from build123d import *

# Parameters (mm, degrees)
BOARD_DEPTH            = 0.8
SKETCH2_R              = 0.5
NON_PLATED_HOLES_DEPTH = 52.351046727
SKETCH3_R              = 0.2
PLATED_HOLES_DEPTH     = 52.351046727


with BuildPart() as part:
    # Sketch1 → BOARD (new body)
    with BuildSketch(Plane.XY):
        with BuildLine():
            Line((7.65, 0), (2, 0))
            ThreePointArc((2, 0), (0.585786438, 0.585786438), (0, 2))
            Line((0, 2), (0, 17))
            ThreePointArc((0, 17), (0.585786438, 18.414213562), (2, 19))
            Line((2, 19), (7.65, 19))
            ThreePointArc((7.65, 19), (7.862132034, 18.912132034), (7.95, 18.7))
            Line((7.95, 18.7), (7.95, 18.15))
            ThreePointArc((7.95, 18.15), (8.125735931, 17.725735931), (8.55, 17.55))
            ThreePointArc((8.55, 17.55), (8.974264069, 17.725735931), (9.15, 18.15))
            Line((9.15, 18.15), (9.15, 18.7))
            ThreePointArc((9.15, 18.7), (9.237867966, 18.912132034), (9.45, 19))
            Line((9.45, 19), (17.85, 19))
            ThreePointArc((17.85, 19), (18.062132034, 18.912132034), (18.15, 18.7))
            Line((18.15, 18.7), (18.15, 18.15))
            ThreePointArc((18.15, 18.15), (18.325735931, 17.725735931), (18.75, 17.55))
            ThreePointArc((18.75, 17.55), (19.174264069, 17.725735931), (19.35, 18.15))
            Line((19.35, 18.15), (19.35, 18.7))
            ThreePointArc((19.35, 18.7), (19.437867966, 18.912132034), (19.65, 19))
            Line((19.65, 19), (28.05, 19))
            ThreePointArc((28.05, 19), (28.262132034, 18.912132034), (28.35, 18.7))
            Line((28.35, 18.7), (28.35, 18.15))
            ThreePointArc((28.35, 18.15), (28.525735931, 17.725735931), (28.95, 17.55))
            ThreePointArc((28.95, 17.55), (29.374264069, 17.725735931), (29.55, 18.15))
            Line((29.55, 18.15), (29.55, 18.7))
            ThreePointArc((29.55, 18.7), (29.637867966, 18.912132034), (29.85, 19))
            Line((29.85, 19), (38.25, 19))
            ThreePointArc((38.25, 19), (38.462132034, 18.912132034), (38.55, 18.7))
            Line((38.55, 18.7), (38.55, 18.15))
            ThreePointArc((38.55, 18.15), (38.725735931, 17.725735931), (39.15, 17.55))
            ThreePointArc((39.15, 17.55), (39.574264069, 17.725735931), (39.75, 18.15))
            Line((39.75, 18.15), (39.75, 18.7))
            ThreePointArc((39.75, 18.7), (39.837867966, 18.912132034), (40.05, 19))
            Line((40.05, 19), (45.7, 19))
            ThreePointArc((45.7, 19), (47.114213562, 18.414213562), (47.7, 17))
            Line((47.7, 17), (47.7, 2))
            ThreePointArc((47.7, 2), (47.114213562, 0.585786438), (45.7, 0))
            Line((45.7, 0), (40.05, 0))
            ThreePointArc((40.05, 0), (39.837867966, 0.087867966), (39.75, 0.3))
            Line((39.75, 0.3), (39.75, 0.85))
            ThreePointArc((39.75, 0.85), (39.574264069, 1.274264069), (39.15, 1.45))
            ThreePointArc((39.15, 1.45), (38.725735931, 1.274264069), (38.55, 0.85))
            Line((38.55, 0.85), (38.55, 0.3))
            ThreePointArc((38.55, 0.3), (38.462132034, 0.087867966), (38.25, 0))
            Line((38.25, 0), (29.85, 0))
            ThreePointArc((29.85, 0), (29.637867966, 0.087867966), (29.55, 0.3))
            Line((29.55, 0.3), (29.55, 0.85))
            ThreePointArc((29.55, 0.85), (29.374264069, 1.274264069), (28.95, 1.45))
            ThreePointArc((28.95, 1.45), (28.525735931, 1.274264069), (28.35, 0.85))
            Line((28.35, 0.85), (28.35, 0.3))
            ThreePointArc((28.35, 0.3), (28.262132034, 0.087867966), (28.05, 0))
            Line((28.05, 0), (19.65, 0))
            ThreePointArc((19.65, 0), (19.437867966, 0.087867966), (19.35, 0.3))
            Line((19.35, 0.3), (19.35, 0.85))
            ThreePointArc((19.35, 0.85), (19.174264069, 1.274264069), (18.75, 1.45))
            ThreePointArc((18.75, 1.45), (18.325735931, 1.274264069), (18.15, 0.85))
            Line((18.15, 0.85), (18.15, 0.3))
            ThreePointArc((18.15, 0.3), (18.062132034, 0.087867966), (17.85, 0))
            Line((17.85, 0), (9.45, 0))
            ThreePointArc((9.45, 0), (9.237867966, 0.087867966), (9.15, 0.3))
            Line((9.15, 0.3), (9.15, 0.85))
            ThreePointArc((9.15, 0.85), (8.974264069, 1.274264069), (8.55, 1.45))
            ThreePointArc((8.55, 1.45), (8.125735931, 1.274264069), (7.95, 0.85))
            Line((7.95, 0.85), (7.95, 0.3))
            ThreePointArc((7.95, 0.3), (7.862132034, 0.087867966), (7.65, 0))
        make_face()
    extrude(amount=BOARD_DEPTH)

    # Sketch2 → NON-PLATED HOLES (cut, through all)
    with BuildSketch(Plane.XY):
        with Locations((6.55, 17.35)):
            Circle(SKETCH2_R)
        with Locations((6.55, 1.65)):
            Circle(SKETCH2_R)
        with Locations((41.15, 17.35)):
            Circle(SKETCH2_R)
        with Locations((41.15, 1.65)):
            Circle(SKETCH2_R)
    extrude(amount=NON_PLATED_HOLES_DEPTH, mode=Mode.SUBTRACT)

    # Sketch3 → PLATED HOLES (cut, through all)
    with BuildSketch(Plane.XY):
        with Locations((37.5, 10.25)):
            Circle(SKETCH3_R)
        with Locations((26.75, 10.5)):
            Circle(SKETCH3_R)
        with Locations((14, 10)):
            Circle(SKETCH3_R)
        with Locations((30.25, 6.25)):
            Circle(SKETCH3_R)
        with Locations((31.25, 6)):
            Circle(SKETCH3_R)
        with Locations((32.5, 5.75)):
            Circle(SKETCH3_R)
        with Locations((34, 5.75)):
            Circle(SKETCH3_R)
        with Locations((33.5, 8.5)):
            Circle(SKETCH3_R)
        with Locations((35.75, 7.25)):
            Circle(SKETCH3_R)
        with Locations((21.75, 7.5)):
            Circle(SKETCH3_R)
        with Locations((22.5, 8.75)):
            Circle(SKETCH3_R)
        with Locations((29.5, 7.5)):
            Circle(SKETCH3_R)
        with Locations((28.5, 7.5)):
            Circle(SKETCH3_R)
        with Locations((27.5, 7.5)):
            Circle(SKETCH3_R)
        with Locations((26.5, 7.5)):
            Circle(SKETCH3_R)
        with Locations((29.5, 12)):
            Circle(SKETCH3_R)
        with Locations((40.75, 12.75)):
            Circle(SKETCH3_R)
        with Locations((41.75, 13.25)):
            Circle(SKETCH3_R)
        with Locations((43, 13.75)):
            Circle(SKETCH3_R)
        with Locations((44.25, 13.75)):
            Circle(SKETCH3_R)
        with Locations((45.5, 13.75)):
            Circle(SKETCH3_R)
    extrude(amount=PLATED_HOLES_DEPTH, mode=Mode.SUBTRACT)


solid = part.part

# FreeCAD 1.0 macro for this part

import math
import FreeCAD as App
import Part
import Sketcher

doc = App.newDocument("Part")
body = doc.addObject("PartDesign::Body", "Body")

# Sketch on XY plane
sketch1 = body.newObject("Sketcher::SketchObject", "Sketch")
sketch1.AttachmentSupport = (doc.getObject("XY_Plane"), [""])
sketch1.MapMode = "FlatFace"
sketch1.addGeometry(Part.LineSegment(App.Vector(2, 0, 0), App.Vector(7.65, 0, 0)), False)
sketch1.addGeometry(Part.ArcOfCircle(Part.Circle(App.Vector(7.65, 0.3, 0), App.Vector(0, 0, 1), 0.3), math.radians(-90), math.radians(0)), False)
sketch1.addGeometry(Part.LineSegment(App.Vector(7.95, 0.3, 0), App.Vector(7.95, 0.85, 0)), False)
sketch1.addGeometry(Part.ArcOfCircle(Part.Circle(App.Vector(8.55, 0.85, 0), App.Vector(0, 0, 1), 0.6), math.radians(90), math.radians(180)), False)
sketch1.addGeometry(Part.ArcOfCircle(Part.Circle(App.Vector(8.55, 0.85, 0), App.Vector(0, 0, 1), 0.6), math.radians(0), math.radians(90)), False)
sketch1.addGeometry(Part.LineSegment(App.Vector(9.15, 0.85, 0), App.Vector(9.15, 0.3, 0)), False)
sketch1.addGeometry(Part.ArcOfCircle(Part.Circle(App.Vector(9.45, 0.3, 0), App.Vector(0, 0, 1), 0.3), math.radians(-180), math.radians(-90)), False)
sketch1.addGeometry(Part.LineSegment(App.Vector(9.45, 0, 0), App.Vector(17.85, 0, 0)), False)
sketch1.addGeometry(Part.ArcOfCircle(Part.Circle(App.Vector(17.85, 0.3, 0), App.Vector(0, 0, 1), 0.3), math.radians(-90), math.radians(0)), False)
sketch1.addGeometry(Part.LineSegment(App.Vector(18.15, 0.3, 0), App.Vector(18.15, 0.85, 0)), False)
sketch1.addGeometry(Part.ArcOfCircle(Part.Circle(App.Vector(18.75, 0.85, 0), App.Vector(0, 0, 1), 0.6), math.radians(90), math.radians(180)), False)
sketch1.addGeometry(Part.ArcOfCircle(Part.Circle(App.Vector(18.75, 0.85, 0), App.Vector(0, 0, 1), 0.6), math.radians(0), math.radians(90)), False)
sketch1.addGeometry(Part.LineSegment(App.Vector(19.35, 0.85, 0), App.Vector(19.35, 0.3, 0)), False)
sketch1.addGeometry(Part.ArcOfCircle(Part.Circle(App.Vector(19.65, 0.3, 0), App.Vector(0, 0, 1), 0.3), math.radians(-180), math.radians(-90)), False)
sketch1.addGeometry(Part.LineSegment(App.Vector(19.65, 0, 0), App.Vector(28.05, 0, 0)), False)
sketch1.addGeometry(Part.ArcOfCircle(Part.Circle(App.Vector(28.05, 0.3, 0), App.Vector(0, 0, 1), 0.3), math.radians(-90), math.radians(0)), False)
sketch1.addGeometry(Part.LineSegment(App.Vector(28.35, 0.3, 0), App.Vector(28.35, 0.85, 0)), False)
sketch1.addGeometry(Part.ArcOfCircle(Part.Circle(App.Vector(28.95, 0.85, 0), App.Vector(0, 0, 1), 0.6), math.radians(90), math.radians(180)), False)
sketch1.addGeometry(Part.ArcOfCircle(Part.Circle(App.Vector(28.95, 0.85, 0), App.Vector(0, 0, 1), 0.6), math.radians(0), math.radians(90)), False)
sketch1.addGeometry(Part.LineSegment(App.Vector(29.55, 0.85, 0), App.Vector(29.55, 0.3, 0)), False)
sketch1.addGeometry(Part.ArcOfCircle(Part.Circle(App.Vector(29.85, 0.3, 0), App.Vector(0, 0, 1), 0.3), math.radians(-180), math.radians(-90)), False)
sketch1.addGeometry(Part.LineSegment(App.Vector(29.85, 0, 0), App.Vector(38.25, 0, 0)), False)
sketch1.addGeometry(Part.ArcOfCircle(Part.Circle(App.Vector(38.25, 0.3, 0), App.Vector(0, 0, 1), 0.3), math.radians(-90), math.radians(0)), False)
sketch1.addGeometry(Part.LineSegment(App.Vector(38.55, 0.3, 0), App.Vector(38.55, 0.85, 0)), False)
sketch1.addGeometry(Part.ArcOfCircle(Part.Circle(App.Vector(39.15, 0.85, 0), App.Vector(0, 0, 1), 0.6), math.radians(90), math.radians(180)), False)
sketch1.addGeometry(Part.ArcOfCircle(Part.Circle(App.Vector(39.15, 0.85, 0), App.Vector(0, 0, 1), 0.6), math.radians(0), math.radians(90)), False)
sketch1.addGeometry(Part.LineSegment(App.Vector(39.75, 0.85, 0), App.Vector(39.75, 0.3, 0)), False)
sketch1.addGeometry(Part.ArcOfCircle(Part.Circle(App.Vector(40.05, 0.3, 0), App.Vector(0, 0, 1), 0.3), math.radians(-180), math.radians(-90)), False)
sketch1.addGeometry(Part.LineSegment(App.Vector(40.05, 0, 0), App.Vector(45.7, 0, 0)), False)
sketch1.addGeometry(Part.ArcOfCircle(Part.Circle(App.Vector(45.7, 2, 0), App.Vector(0, 0, 1), 2), math.radians(-90), math.radians(0)), False)
sketch1.addGeometry(Part.LineSegment(App.Vector(47.7, 2, 0), App.Vector(47.7, 17, 0)), False)
sketch1.addGeometry(Part.ArcOfCircle(Part.Circle(App.Vector(45.7, 17, 0), App.Vector(0, 0, 1), 2), math.radians(0), math.radians(90)), False)
sketch1.addGeometry(Part.LineSegment(App.Vector(45.7, 19, 0), App.Vector(40.05, 19, 0)), False)
sketch1.addGeometry(Part.ArcOfCircle(Part.Circle(App.Vector(40.05, 18.7, 0), App.Vector(0, 0, 1), 0.3), math.radians(90), math.radians(180)), False)
sketch1.addGeometry(Part.LineSegment(App.Vector(39.75, 18.7, 0), App.Vector(39.75, 18.15, 0)), False)
sketch1.addGeometry(Part.ArcOfCircle(Part.Circle(App.Vector(39.15, 18.15, 0), App.Vector(0, 0, 1), 0.6), math.radians(-90), math.radians(0)), False)
sketch1.addGeometry(Part.ArcOfCircle(Part.Circle(App.Vector(39.15, 18.15, 0), App.Vector(0, 0, 1), 0.6), math.radians(180), math.radians(270)), False)
sketch1.addGeometry(Part.LineSegment(App.Vector(38.55, 18.15, 0), App.Vector(38.55, 18.7, 0)), False)
sketch1.addGeometry(Part.ArcOfCircle(Part.Circle(App.Vector(38.25, 18.7, 0), App.Vector(0, 0, 1), 0.3), math.radians(0), math.radians(90)), False)
sketch1.addGeometry(Part.LineSegment(App.Vector(38.25, 19, 0), App.Vector(29.85, 19, 0)), False)
sketch1.addGeometry(Part.ArcOfCircle(Part.Circle(App.Vector(29.85, 18.7, 0), App.Vector(0, 0, 1), 0.3), math.radians(90), math.radians(180)), False)
sketch1.addGeometry(Part.LineSegment(App.Vector(29.55, 18.7, 0), App.Vector(29.55, 18.15, 0)), False)
sketch1.addGeometry(Part.ArcOfCircle(Part.Circle(App.Vector(28.95, 18.15, 0), App.Vector(0, 0, 1), 0.6), math.radians(-90), math.radians(0)), False)
sketch1.addGeometry(Part.ArcOfCircle(Part.Circle(App.Vector(28.95, 18.15, 0), App.Vector(0, 0, 1), 0.6), math.radians(180), math.radians(270)), False)
sketch1.addGeometry(Part.LineSegment(App.Vector(28.35, 18.15, 0), App.Vector(28.35, 18.7, 0)), False)
sketch1.addGeometry(Part.ArcOfCircle(Part.Circle(App.Vector(28.05, 18.7, 0), App.Vector(0, 0, 1), 0.3), math.radians(0), math.radians(90)), False)
sketch1.addGeometry(Part.LineSegment(App.Vector(28.05, 19, 0), App.Vector(19.65, 19, 0)), False)
sketch1.addGeometry(Part.ArcOfCircle(Part.Circle(App.Vector(19.65, 18.7, 0), App.Vector(0, 0, 1), 0.3), math.radians(90), math.radians(180)), False)
sketch1.addGeometry(Part.LineSegment(App.Vector(19.35, 18.7, 0), App.Vector(19.35, 18.15, 0)), False)
sketch1.addGeometry(Part.ArcOfCircle(Part.Circle(App.Vector(18.75, 18.15, 0), App.Vector(0, 0, 1), 0.6), math.radians(-90), math.radians(0)), False)
sketch1.addGeometry(Part.ArcOfCircle(Part.Circle(App.Vector(18.75, 18.15, 0), App.Vector(0, 0, 1), 0.6), math.radians(180), math.radians(270)), False)
sketch1.addGeometry(Part.LineSegment(App.Vector(18.15, 18.15, 0), App.Vector(18.15, 18.7, 0)), False)
sketch1.addGeometry(Part.ArcOfCircle(Part.Circle(App.Vector(17.85, 18.7, 0), App.Vector(0, 0, 1), 0.3), math.radians(0), math.radians(90)), False)
sketch1.addGeometry(Part.LineSegment(App.Vector(17.85, 19, 0), App.Vector(9.45, 19, 0)), False)
sketch1.addGeometry(Part.ArcOfCircle(Part.Circle(App.Vector(9.45, 18.7, 0), App.Vector(0, 0, 1), 0.3), math.radians(90), math.radians(180)), False)
sketch1.addGeometry(Part.LineSegment(App.Vector(9.15, 18.7, 0), App.Vector(9.15, 18.15, 0)), False)
sketch1.addGeometry(Part.ArcOfCircle(Part.Circle(App.Vector(8.55, 18.15, 0), App.Vector(0, 0, 1), 0.6), math.radians(-90), math.radians(0)), False)
sketch1.addGeometry(Part.ArcOfCircle(Part.Circle(App.Vector(8.55, 18.15, 0), App.Vector(0, 0, 1), 0.6), math.radians(180), math.radians(270)), False)
sketch1.addGeometry(Part.LineSegment(App.Vector(7.95, 18.15, 0), App.Vector(7.95, 18.7, 0)), False)
sketch1.addGeometry(Part.ArcOfCircle(Part.Circle(App.Vector(7.65, 18.7, 0), App.Vector(0, 0, 1), 0.3), math.radians(0), math.radians(90)), False)
sketch1.addGeometry(Part.LineSegment(App.Vector(7.65, 19, 0), App.Vector(2, 19, 0)), False)
sketch1.addGeometry(Part.ArcOfCircle(Part.Circle(App.Vector(2, 17, 0), App.Vector(0, 0, 1), 2), math.radians(90), math.radians(180)), False)
sketch1.addGeometry(Part.LineSegment(App.Vector(0, 17, 0), App.Vector(0, 2, 0)), False)
sketch1.addGeometry(Part.ArcOfCircle(Part.Circle(App.Vector(2, 2, 0), App.Vector(0, 0, 1), 2), math.radians(-180), math.radians(-90)), False)
sketch1.addConstraint(Sketcher.Constraint("Tangent", 0, 2, 1, 1))
sketch1.addConstraint(Sketcher.Constraint("Tangent", 1, 2, 2, 1))
sketch1.addConstraint(Sketcher.Constraint("Tangent", 2, 2, 3, 2))
sketch1.addConstraint(Sketcher.Constraint("Tangent", 3, 1, 4, 2))
sketch1.addConstraint(Sketcher.Constraint("Tangent", 4, 1, 5, 1))
sketch1.addConstraint(Sketcher.Constraint("Tangent", 5, 2, 6, 1))
sketch1.addConstraint(Sketcher.Constraint("Tangent", 6, 2, 7, 1))
sketch1.addConstraint(Sketcher.Constraint("Tangent", 7, 2, 8, 1))
sketch1.addConstraint(Sketcher.Constraint("Tangent", 8, 2, 9, 1))
sketch1.addConstraint(Sketcher.Constraint("Tangent", 9, 2, 10, 2))
sketch1.addConstraint(Sketcher.Constraint("Tangent", 10, 1, 11, 2))
sketch1.addConstraint(Sketcher.Constraint("Tangent", 11, 1, 12, 1))
sketch1.addConstraint(Sketcher.Constraint("Tangent", 12, 2, 13, 1))
sketch1.addConstraint(Sketcher.Constraint("Tangent", 13, 2, 14, 1))
sketch1.addConstraint(Sketcher.Constraint("Tangent", 14, 2, 15, 1))
sketch1.addConstraint(Sketcher.Constraint("Tangent", 15, 2, 16, 1))
sketch1.addConstraint(Sketcher.Constraint("Tangent", 16, 2, 17, 2))
sketch1.addConstraint(Sketcher.Constraint("Tangent", 17, 1, 18, 2))
sketch1.addConstraint(Sketcher.Constraint("Tangent", 18, 1, 19, 1))
sketch1.addConstraint(Sketcher.Constraint("Tangent", 19, 2, 20, 1))
sketch1.addConstraint(Sketcher.Constraint("Tangent", 20, 2, 21, 1))
sketch1.addConstraint(Sketcher.Constraint("Tangent", 21, 2, 22, 1))
sketch1.addConstraint(Sketcher.Constraint("Tangent", 22, 2, 23, 1))
sketch1.addConstraint(Sketcher.Constraint("Tangent", 23, 2, 24, 2))
sketch1.addConstraint(Sketcher.Constraint("Tangent", 24, 1, 25, 2))
sketch1.addConstraint(Sketcher.Constraint("Tangent", 25, 1, 26, 1))
sketch1.addConstraint(Sketcher.Constraint("Tangent", 26, 2, 27, 1))
sketch1.addConstraint(Sketcher.Constraint("Tangent", 27, 2, 28, 1))
sketch1.addConstraint(Sketcher.Constraint("Tangent", 28, 2, 29, 1))
sketch1.addConstraint(Sketcher.Constraint("Tangent", 29, 2, 30, 1))
sketch1.addConstraint(Sketcher.Constraint("Tangent", 30, 2, 31, 1))
sketch1.addConstraint(Sketcher.Constraint("Tangent", 31, 2, 32, 1))
sketch1.addConstraint(Sketcher.Constraint("Tangent", 32, 2, 33, 1))
sketch1.addConstraint(Sketcher.Constraint("Tangent", 33, 2, 34, 1))
sketch1.addConstraint(Sketcher.Constraint("Tangent", 34, 2, 35, 2))
sketch1.addConstraint(Sketcher.Constraint("Tangent", 35, 1, 36, 2))
sketch1.addConstraint(Sketcher.Constraint("Tangent", 36, 1, 37, 1))
sketch1.addConstraint(Sketcher.Constraint("Tangent", 37, 2, 38, 1))
sketch1.addConstraint(Sketcher.Constraint("Tangent", 38, 2, 39, 1))
sketch1.addConstraint(Sketcher.Constraint("Tangent", 39, 2, 40, 1))
sketch1.addConstraint(Sketcher.Constraint("Tangent", 40, 2, 41, 1))
sketch1.addConstraint(Sketcher.Constraint("Tangent", 41, 2, 42, 2))
sketch1.addConstraint(Sketcher.Constraint("Tangent", 42, 1, 43, 2))
sketch1.addConstraint(Sketcher.Constraint("Tangent", 43, 1, 44, 1))
sketch1.addConstraint(Sketcher.Constraint("Tangent", 44, 2, 45, 1))
sketch1.addConstraint(Sketcher.Constraint("Tangent", 45, 2, 46, 1))
sketch1.addConstraint(Sketcher.Constraint("Tangent", 46, 2, 47, 1))
sketch1.addConstraint(Sketcher.Constraint("Tangent", 47, 2, 48, 1))
sketch1.addConstraint(Sketcher.Constraint("Tangent", 48, 2, 49, 2))
sketch1.addConstraint(Sketcher.Constraint("Tangent", 49, 1, 50, 2))
sketch1.addConstraint(Sketcher.Constraint("Tangent", 50, 1, 51, 1))
sketch1.addConstraint(Sketcher.Constraint("Tangent", 51, 2, 52, 1))
sketch1.addConstraint(Sketcher.Constraint("Tangent", 52, 2, 53, 1))
sketch1.addConstraint(Sketcher.Constraint("Tangent", 53, 2, 54, 1))
sketch1.addConstraint(Sketcher.Constraint("Tangent", 54, 2, 55, 1))
sketch1.addConstraint(Sketcher.Constraint("Tangent", 55, 2, 56, 2))
sketch1.addConstraint(Sketcher.Constraint("Tangent", 56, 1, 57, 2))
sketch1.addConstraint(Sketcher.Constraint("Tangent", 57, 1, 58, 1))
sketch1.addConstraint(Sketcher.Constraint("Tangent", 58, 2, 59, 1))
sketch1.addConstraint(Sketcher.Constraint("Tangent", 59, 2, 60, 1))
sketch1.addConstraint(Sketcher.Constraint("Tangent", 60, 2, 61, 1))
sketch1.addConstraint(Sketcher.Constraint("Tangent", 61, 2, 62, 1))
sketch1.addConstraint(Sketcher.Constraint("Tangent", 62, 2, 63, 1))
sketch1.addConstraint(Sketcher.Constraint("Tangent", 63, 2, 0, 1))
sketch1.addConstraint(Sketcher.Constraint("Horizontal", 0))
sketch1.addConstraint(Sketcher.Constraint("Vertical", 2))
sketch1.addConstraint(Sketcher.Constraint("Vertical", 5))
sketch1.addConstraint(Sketcher.Constraint("Horizontal", 7))
sketch1.addConstraint(Sketcher.Constraint("Vertical", 9))
sketch1.addConstraint(Sketcher.Constraint("Vertical", 12))
sketch1.addConstraint(Sketcher.Constraint("Horizontal", 14))
sketch1.addConstraint(Sketcher.Constraint("Vertical", 16))
sketch1.addConstraint(Sketcher.Constraint("Vertical", 19))
sketch1.addConstraint(Sketcher.Constraint("Horizontal", 21))
sketch1.addConstraint(Sketcher.Constraint("Vertical", 23))
sketch1.addConstraint(Sketcher.Constraint("Vertical", 26))
sketch1.addConstraint(Sketcher.Constraint("Horizontal", 28))
sketch1.addConstraint(Sketcher.Constraint("Vertical", 30))
sketch1.addConstraint(Sketcher.Constraint("Horizontal", 32))
sketch1.addConstraint(Sketcher.Constraint("Vertical", 34))
sketch1.addConstraint(Sketcher.Constraint("Vertical", 37))
sketch1.addConstraint(Sketcher.Constraint("Horizontal", 39))
sketch1.addConstraint(Sketcher.Constraint("Vertical", 41))
sketch1.addConstraint(Sketcher.Constraint("Vertical", 44))
sketch1.addConstraint(Sketcher.Constraint("Horizontal", 46))
sketch1.addConstraint(Sketcher.Constraint("Vertical", 48))
sketch1.addConstraint(Sketcher.Constraint("Vertical", 51))
sketch1.addConstraint(Sketcher.Constraint("Horizontal", 53))
sketch1.addConstraint(Sketcher.Constraint("Vertical", 55))
sketch1.addConstraint(Sketcher.Constraint("Vertical", 58))
sketch1.addConstraint(Sketcher.Constraint("Horizontal", 60))
sketch1.addConstraint(Sketcher.Constraint("Vertical", 62))
sketch1.addConstraint(Sketcher.Constraint("Equal", 3, 4))
sketch1.addConstraint(Sketcher.Constraint("Equal", 1, 6))
sketch1.addConstraint(Sketcher.Constraint("Equal", 6, 8))
sketch1.addConstraint(Sketcher.Constraint("Equal", 4, 10))
sketch1.addConstraint(Sketcher.Constraint("Equal", 10, 11))
sketch1.addConstraint(Sketcher.Constraint("Equal", 8, 13))
sketch1.addConstraint(Sketcher.Constraint("Equal", 13, 15))
sketch1.addConstraint(Sketcher.Constraint("Equal", 11, 17))
sketch1.addConstraint(Sketcher.Constraint("Equal", 17, 18))
sketch1.addConstraint(Sketcher.Constraint("Equal", 15, 20))
sketch1.addConstraint(Sketcher.Constraint("Equal", 20, 22))
sketch1.addConstraint(Sketcher.Constraint("Equal", 18, 24))
sketch1.addConstraint(Sketcher.Constraint("Equal", 24, 25))
sketch1.addConstraint(Sketcher.Constraint("Equal", 22, 27))
sketch1.addConstraint(Sketcher.Constraint("Equal", 29, 31))
sketch1.addConstraint(Sketcher.Constraint("Equal", 27, 33))
sketch1.addConstraint(Sketcher.Constraint("Equal", 25, 35))
sketch1.addConstraint(Sketcher.Constraint("Equal", 35, 36))
sketch1.addConstraint(Sketcher.Constraint("Equal", 33, 38))
sketch1.addConstraint(Sketcher.Constraint("Equal", 38, 40))
sketch1.addConstraint(Sketcher.Constraint("Equal", 36, 42))
sketch1.addConstraint(Sketcher.Constraint("Equal", 42, 43))
sketch1.addConstraint(Sketcher.Constraint("Equal", 40, 45))
sketch1.addConstraint(Sketcher.Constraint("Equal", 45, 47))
sketch1.addConstraint(Sketcher.Constraint("Equal", 43, 49))
sketch1.addConstraint(Sketcher.Constraint("Equal", 49, 50))
sketch1.addConstraint(Sketcher.Constraint("Equal", 47, 52))
sketch1.addConstraint(Sketcher.Constraint("Equal", 52, 54))
sketch1.addConstraint(Sketcher.Constraint("Equal", 50, 56))
sketch1.addConstraint(Sketcher.Constraint("Equal", 56, 57))
sketch1.addConstraint(Sketcher.Constraint("Equal", 54, 59))
sketch1.addConstraint(Sketcher.Constraint("Equal", 31, 61))
sketch1.addConstraint(Sketcher.Constraint("Equal", 61, 63))
sketch1.addConstraint(Sketcher.Constraint("PointOnObject", 0, 2, -1))
sketch1.addConstraint(Sketcher.Constraint("PointOnObject", 6, 2, -1))
sketch1.addConstraint(Sketcher.Constraint("PointOnObject", 13, 2, -1))
sketch1.addConstraint(Sketcher.Constraint("PointOnObject", 20, 2, -1))
sketch1.addConstraint(Sketcher.Constraint("PointOnObject", 27, 2, -1))
sketch1.addConstraint(Sketcher.Constraint("PointOnObject", 61, 2, -2))
sketch1.addConstraint(Sketcher.Constraint("Horizontal", 4, 3, 10, 3))
sketch1.addConstraint(Sketcher.Constraint("Horizontal", 11, 3, 17, 3))
sketch1.addConstraint(Sketcher.Constraint("Horizontal", 18, 3, 24, 3))
sketch1.addConstraint(Sketcher.Constraint("Horizontal", 33, 3, 38, 3))
sketch1.addConstraint(Sketcher.Constraint("Horizontal", 36, 3, 42, 3))
sketch1.addConstraint(Sketcher.Constraint("Horizontal", 40, 3, 45, 3))
sketch1.addConstraint(Sketcher.Constraint("Horizontal", 43, 3, 49, 3))
sketch1.addConstraint(Sketcher.Constraint("Horizontal", 47, 3, 52, 3))
sketch1.addConstraint(Sketcher.Constraint("Horizontal", 50, 3, 56, 3))
sketch1.addConstraint(Sketcher.Constraint("Horizontal", 54, 3, 59, 3))
sketch1.addConstraint(Sketcher.Constraint("Vertical", 27, 3, 33, 3))
sketch1.addConstraint(Sketcher.Constraint("Vertical", 20, 3, 40, 3))
sketch1.addConstraint(Sketcher.Constraint("Vertical", 13, 3, 47, 3))
sketch1.addConstraint(Sketcher.Constraint("Vertical", 6, 3, 54, 3))
sketch1.addConstraint(Sketcher.Constraint("Vertical", 57, 3, 3, 1))
sketch1.addConstraint(Sketcher.Constraint("Vertical", 50, 3, 10, 1))
sketch1.addConstraint(Sketcher.Constraint("Vertical", 43, 3, 17, 1))
sketch1.addConstraint(Sketcher.Constraint("Vertical", 36, 3, 24, 1))
sketch1.addConstraint(Sketcher.Constraint("Vertical", 24, 1, 35, 1))
sketch1.addConstraint(Sketcher.Constraint("Vertical", 17, 1, 42, 1))
sketch1.addConstraint(Sketcher.Constraint("Vertical", 10, 1, 49, 1))
sketch1.addConstraint(Sketcher.Constraint("Vertical", 3, 1, 56, 1))
sketch1.addConstraint(Sketcher.Constraint("Equal", 7, 14))
sketch1.addConstraint(Sketcher.Constraint("Equal", 14, 21))
sketch1.addConstraint(Sketcher.Constraint("Equal", 0, 28))
sketch1.addConstraint(Sketcher.Constraint("Equal", 26, 34))
sketch1.addConstraint(Sketcher.Constraint("Radius", 29, 2.0))
sketch1.addConstraint(Sketcher.Constraint("Radius", 1, 0.3))
sketch1.addConstraint(Sketcher.Constraint("Radius", 3, 0.6))
sketch1.addConstraint(Sketcher.Constraint("DistanceY", 30, 1, 30, 2, 15.0))
sketch1.addConstraint(Sketcher.Constraint("DistanceX", 7, 1, 7, 2, 8.4))
sketch1.addConstraint(Sketcher.Constraint("DistanceX", 0, 1, 0, 2, 5.65))
sketch1.addConstraint(Sketcher.Constraint("DistanceY", 2, 1, 2, 2, 0.55))
pad1 = body.newObject("PartDesign::Pad", "Pad")
pad1.Profile = sketch1
pad1.Length = 0.8

# Sketch on XY plane
sketch2 = body.newObject("Sketcher::SketchObject", "Sketch001")
sketch2.AttachmentSupport = (doc.getObject("XY_Plane"), [""])
sketch2.MapMode = "FlatFace"
sketch2.addGeometry(Part.Circle(App.Vector(6.5, 17.4, 0), App.Vector(0, 0, 1), 0.5), False)
sketch2.addGeometry(Part.Circle(App.Vector(6.5, 1.6, 0), App.Vector(0, 0, 1), 0.5), False)
sketch2.addGeometry(Part.Circle(App.Vector(41.1, 17.4, 0), App.Vector(0, 0, 1), 0.5), False)
sketch2.addGeometry(Part.Circle(App.Vector(41.1, 1.6, 0), App.Vector(0, 0, 1), 0.5), False)
sketch2.addConstraint(Sketcher.Constraint("Equal", 0, 1))
sketch2.addConstraint(Sketcher.Constraint("Equal", 1, 2))
sketch2.addConstraint(Sketcher.Constraint("Equal", 2, 3))
sketch2.addConstraint(Sketcher.Constraint("Horizontal", 0, 3, 2, 3))
sketch2.addConstraint(Sketcher.Constraint("Horizontal", 1, 3, 3, 3))
sketch2.addConstraint(Sketcher.Constraint("Vertical", 0, 3, 1, 3))
sketch2.addConstraint(Sketcher.Constraint("Vertical", 2, 3, 3, 3))
sketch2.addConstraint(Sketcher.Constraint("Diameter", 0, 1.0))
sketch2.addConstraint(Sketcher.Constraint("DistanceY", 1, 3, 0, 3, 15.7))
sketch2.addConstraint(Sketcher.Constraint("DistanceX", 0, 3, 2, 3, 34.6))
sketch2.addConstraint(Sketcher.Constraint("DistanceX", -1, 1, 0, 3, 6.55))
sketch2.addConstraint(Sketcher.Constraint("DistanceY", -1, 1, 0, 3, 17.35))
pocket1 = body.newObject("PartDesign::Pocket", "Pocket")
pocket1.Profile = sketch2
pocket1.Type = "ThroughAll"
pocket1.Reversed = True

# Sketch on XY plane
sketch3 = body.newObject("Sketcher::SketchObject", "Sketch002")
sketch3.AttachmentSupport = (doc.getObject("XY_Plane"), [""])
sketch3.MapMode = "FlatFace"
sketch3.addGeometry(Part.Circle(App.Vector(37.5, 10.25, 0), App.Vector(0, 0, 1), 0.2), False)
sketch3.addGeometry(Part.Circle(App.Vector(26.75, 10.5, 0), App.Vector(0, 0, 1), 0.2), False)
sketch3.addGeometry(Part.Circle(App.Vector(14, 10, 0), App.Vector(0, 0, 1), 0.2), False)
sketch3.addGeometry(Part.Circle(App.Vector(30.25, 6.25, 0), App.Vector(0, 0, 1), 0.2), False)
sketch3.addGeometry(Part.Circle(App.Vector(31.25, 6, 0), App.Vector(0, 0, 1), 0.2), False)
sketch3.addGeometry(Part.Circle(App.Vector(32.5, 5.75, 0), App.Vector(0, 0, 1), 0.2), False)
sketch3.addGeometry(Part.Circle(App.Vector(34, 5.75, 0), App.Vector(0, 0, 1), 0.2), False)
sketch3.addGeometry(Part.Circle(App.Vector(33.5, 8.5, 0), App.Vector(0, 0, 1), 0.2), False)
sketch3.addGeometry(Part.Circle(App.Vector(35.75, 7.25, 0), App.Vector(0, 0, 1), 0.2), False)
sketch3.addGeometry(Part.Circle(App.Vector(21.75, 7.5, 0), App.Vector(0, 0, 1), 0.2), False)
sketch3.addGeometry(Part.Circle(App.Vector(22.5, 8.75, 0), App.Vector(0, 0, 1), 0.2), False)
sketch3.addGeometry(Part.Circle(App.Vector(29.5, 7.5, 0), App.Vector(0, 0, 1), 0.2), False)
sketch3.addGeometry(Part.Circle(App.Vector(28.5, 7.5, 0), App.Vector(0, 0, 1), 0.2), False)
sketch3.addGeometry(Part.Circle(App.Vector(27.5, 7.5, 0), App.Vector(0, 0, 1), 0.2), False)
sketch3.addGeometry(Part.Circle(App.Vector(26.5, 7.5, 0), App.Vector(0, 0, 1), 0.2), False)
sketch3.addGeometry(Part.Circle(App.Vector(29.5, 12, 0), App.Vector(0, 0, 1), 0.2), False)
sketch3.addGeometry(Part.Circle(App.Vector(40.75, 12.75, 0), App.Vector(0, 0, 1), 0.2), False)
sketch3.addGeometry(Part.Circle(App.Vector(41.75, 13.25, 0), App.Vector(0, 0, 1), 0.2), False)
sketch3.addGeometry(Part.Circle(App.Vector(43, 13.75, 0), App.Vector(0, 0, 1), 0.2), False)
sketch3.addGeometry(Part.Circle(App.Vector(44.25, 13.75, 0), App.Vector(0, 0, 1), 0.2), False)
sketch3.addGeometry(Part.Circle(App.Vector(45.5, 13.75, 0), App.Vector(0, 0, 1), 0.2), False)
sketch3.addConstraint(Sketcher.Constraint("Equal", 0, 1))
sketch3.addConstraint(Sketcher.Constraint("Equal", 1, 2))
sketch3.addConstraint(Sketcher.Constraint("Equal", 2, 3))
sketch3.addConstraint(Sketcher.Constraint("Equal", 3, 4))
sketch3.addConstraint(Sketcher.Constraint("Equal", 4, 5))
sketch3.addConstraint(Sketcher.Constraint("Equal", 5, 6))
sketch3.addConstraint(Sketcher.Constraint("Equal", 6, 7))
sketch3.addConstraint(Sketcher.Constraint("Equal", 7, 8))
sketch3.addConstraint(Sketcher.Constraint("Equal", 8, 9))
sketch3.addConstraint(Sketcher.Constraint("Equal", 9, 10))
sketch3.addConstraint(Sketcher.Constraint("Equal", 10, 11))
sketch3.addConstraint(Sketcher.Constraint("Equal", 11, 12))
sketch3.addConstraint(Sketcher.Constraint("Equal", 12, 13))
sketch3.addConstraint(Sketcher.Constraint("Equal", 13, 14))
sketch3.addConstraint(Sketcher.Constraint("Equal", 14, 15))
sketch3.addConstraint(Sketcher.Constraint("Equal", 15, 16))
sketch3.addConstraint(Sketcher.Constraint("Equal", 16, 17))
sketch3.addConstraint(Sketcher.Constraint("Equal", 17, 18))
sketch3.addConstraint(Sketcher.Constraint("Equal", 18, 19))
sketch3.addConstraint(Sketcher.Constraint("Equal", 19, 20))
sketch3.addConstraint(Sketcher.Constraint("Horizontal", 5, 3, 6, 3))
sketch3.addConstraint(Sketcher.Constraint("Horizontal", 9, 3, 11, 3))
sketch3.addConstraint(Sketcher.Constraint("Horizontal", 11, 3, 12, 3))
sketch3.addConstraint(Sketcher.Constraint("Horizontal", 12, 3, 13, 3))
sketch3.addConstraint(Sketcher.Constraint("Horizontal", 13, 3, 14, 3))
sketch3.addConstraint(Sketcher.Constraint("Horizontal", 18, 3, 19, 3))
sketch3.addConstraint(Sketcher.Constraint("Horizontal", 19, 3, 20, 3))
sketch3.addConstraint(Sketcher.Constraint("Vertical", 11, 3, 15, 3))
sketch3.addConstraint(Sketcher.Constraint("Diameter", 0, 0.4))
sketch3.addConstraint(Sketcher.Constraint("DistanceX", -1, 1, 2, 3, 14.0))
sketch3.addConstraint(Sketcher.Constraint("DistanceY", -1, 1, 2, 3, 10.0))
sketch3.addConstraint(Sketcher.Constraint("DistanceY", -1, 1, 4, 3, 6.0))
sketch3.addConstraint(Sketcher.Constraint("DistanceX", -1, 1, 6, 3, 34.0))
sketch3.addConstraint(Sketcher.Constraint("DistanceY", -1, 1, 15, 3, 12.0))
sketch3.addConstraint(Sketcher.Constraint("DistanceX", -1, 1, 18, 3, 43.0))
sketch3.addConstraint(Sketcher.Constraint("DistanceY", 3, 3, 0, 3, 4.0))
sketch3.addConstraint(Sketcher.Constraint("DistanceX", 3, 3, 4, 3, 1.0))
sketch3.addConstraint(Sketcher.Constraint("DistanceX", 5, 3, 0, 3, 5.0))
sketch3.addConstraint(Sketcher.Constraint("DistanceX", 5, 3, 7, 3, 1.0))
sketch3.addConstraint(Sketcher.Constraint("DistanceY", 8, 3, 0, 3, 3.0))
sketch3.addConstraint(Sketcher.Constraint("DistanceX", 9, 3, 1, 3, 5.0))
sketch3.addConstraint(Sketcher.Constraint("DistanceY", 9, 3, 1, 3, 3.0))
sketch3.addConstraint(Sketcher.Constraint("DistanceX", 11, 3, 5, 3, 3.0))
sketch3.addConstraint(Sketcher.Constraint("DistanceY", 11, 3, 7, 3, 1.0))
sketch3.addConstraint(Sketcher.Constraint("DistanceX", 12, 3, 11, 3, 1.0))
sketch3.addConstraint(Sketcher.Constraint("DistanceX", 13, 3, 12, 3, 1.0))
sketch3.addConstraint(Sketcher.Constraint("DistanceX", 14, 3, 13, 3, 1.0))
sketch3.addConstraint(Sketcher.Constraint("DistanceX", 8, 3, 16, 3, 5.0))
sketch3.addConstraint(Sketcher.Constraint("DistanceY", 6, 3, 16, 3, 7.0))
sketch3.addConstraint(Sketcher.Constraint("DistanceX", 16, 3, 17, 3, 1.0))
sketch3.addConstraint(Sketcher.Constraint("DistanceY", 0, 3, 17, 3, 3.0))
sketch3.addConstraint(Sketcher.Constraint("DistanceY", 16, 3, 18, 3, 1.0))
sketch3.addConstraint(Sketcher.Constraint("DistanceX", 0, 3, 20, 3, 8.0))
sketch3.addConstraint(Sketcher.Constraint("DistanceX", -1, 1, 0, 3, 37.5))
sketch3.addConstraint(Sketcher.Constraint("DistanceY", -1, 1, 1, 3, 10.5))
sketch3.addConstraint(Sketcher.Constraint("DistanceX", -1, 1, 10, 3, 22.5))
sketch3.addConstraint(Sketcher.Constraint("DistanceX", 1, 3, 3, 3, 3.5))
sketch3.addConstraint(Sketcher.Constraint("DistanceY", 5, 3, 3, 3, 0.5))
sketch3.addConstraint(Sketcher.Constraint("DistanceX", 4, 3, 8, 3, 4.5))
sketch3.addConstraint(Sketcher.Constraint("DistanceY", 3, 3, 10, 3, 2.5))
sketch3.addConstraint(Sketcher.Constraint("DistanceX", 17, 3, 19, 3, 2.5))
sketch3.addConstraint(Sketcher.Constraint("DistanceY", -1, 1, 0, 3, 10.25))
sketch3.addConstraint(Sketcher.Constraint("DistanceX", -1, 1, 1, 3, 26.75))
pocket2 = body.newObject("PartDesign::Pocket", "Pocket001")
pocket2.Profile = sketch3
pocket2.Type = "ThroughAll"
pocket2.Reversed = True

doc.recompute()
